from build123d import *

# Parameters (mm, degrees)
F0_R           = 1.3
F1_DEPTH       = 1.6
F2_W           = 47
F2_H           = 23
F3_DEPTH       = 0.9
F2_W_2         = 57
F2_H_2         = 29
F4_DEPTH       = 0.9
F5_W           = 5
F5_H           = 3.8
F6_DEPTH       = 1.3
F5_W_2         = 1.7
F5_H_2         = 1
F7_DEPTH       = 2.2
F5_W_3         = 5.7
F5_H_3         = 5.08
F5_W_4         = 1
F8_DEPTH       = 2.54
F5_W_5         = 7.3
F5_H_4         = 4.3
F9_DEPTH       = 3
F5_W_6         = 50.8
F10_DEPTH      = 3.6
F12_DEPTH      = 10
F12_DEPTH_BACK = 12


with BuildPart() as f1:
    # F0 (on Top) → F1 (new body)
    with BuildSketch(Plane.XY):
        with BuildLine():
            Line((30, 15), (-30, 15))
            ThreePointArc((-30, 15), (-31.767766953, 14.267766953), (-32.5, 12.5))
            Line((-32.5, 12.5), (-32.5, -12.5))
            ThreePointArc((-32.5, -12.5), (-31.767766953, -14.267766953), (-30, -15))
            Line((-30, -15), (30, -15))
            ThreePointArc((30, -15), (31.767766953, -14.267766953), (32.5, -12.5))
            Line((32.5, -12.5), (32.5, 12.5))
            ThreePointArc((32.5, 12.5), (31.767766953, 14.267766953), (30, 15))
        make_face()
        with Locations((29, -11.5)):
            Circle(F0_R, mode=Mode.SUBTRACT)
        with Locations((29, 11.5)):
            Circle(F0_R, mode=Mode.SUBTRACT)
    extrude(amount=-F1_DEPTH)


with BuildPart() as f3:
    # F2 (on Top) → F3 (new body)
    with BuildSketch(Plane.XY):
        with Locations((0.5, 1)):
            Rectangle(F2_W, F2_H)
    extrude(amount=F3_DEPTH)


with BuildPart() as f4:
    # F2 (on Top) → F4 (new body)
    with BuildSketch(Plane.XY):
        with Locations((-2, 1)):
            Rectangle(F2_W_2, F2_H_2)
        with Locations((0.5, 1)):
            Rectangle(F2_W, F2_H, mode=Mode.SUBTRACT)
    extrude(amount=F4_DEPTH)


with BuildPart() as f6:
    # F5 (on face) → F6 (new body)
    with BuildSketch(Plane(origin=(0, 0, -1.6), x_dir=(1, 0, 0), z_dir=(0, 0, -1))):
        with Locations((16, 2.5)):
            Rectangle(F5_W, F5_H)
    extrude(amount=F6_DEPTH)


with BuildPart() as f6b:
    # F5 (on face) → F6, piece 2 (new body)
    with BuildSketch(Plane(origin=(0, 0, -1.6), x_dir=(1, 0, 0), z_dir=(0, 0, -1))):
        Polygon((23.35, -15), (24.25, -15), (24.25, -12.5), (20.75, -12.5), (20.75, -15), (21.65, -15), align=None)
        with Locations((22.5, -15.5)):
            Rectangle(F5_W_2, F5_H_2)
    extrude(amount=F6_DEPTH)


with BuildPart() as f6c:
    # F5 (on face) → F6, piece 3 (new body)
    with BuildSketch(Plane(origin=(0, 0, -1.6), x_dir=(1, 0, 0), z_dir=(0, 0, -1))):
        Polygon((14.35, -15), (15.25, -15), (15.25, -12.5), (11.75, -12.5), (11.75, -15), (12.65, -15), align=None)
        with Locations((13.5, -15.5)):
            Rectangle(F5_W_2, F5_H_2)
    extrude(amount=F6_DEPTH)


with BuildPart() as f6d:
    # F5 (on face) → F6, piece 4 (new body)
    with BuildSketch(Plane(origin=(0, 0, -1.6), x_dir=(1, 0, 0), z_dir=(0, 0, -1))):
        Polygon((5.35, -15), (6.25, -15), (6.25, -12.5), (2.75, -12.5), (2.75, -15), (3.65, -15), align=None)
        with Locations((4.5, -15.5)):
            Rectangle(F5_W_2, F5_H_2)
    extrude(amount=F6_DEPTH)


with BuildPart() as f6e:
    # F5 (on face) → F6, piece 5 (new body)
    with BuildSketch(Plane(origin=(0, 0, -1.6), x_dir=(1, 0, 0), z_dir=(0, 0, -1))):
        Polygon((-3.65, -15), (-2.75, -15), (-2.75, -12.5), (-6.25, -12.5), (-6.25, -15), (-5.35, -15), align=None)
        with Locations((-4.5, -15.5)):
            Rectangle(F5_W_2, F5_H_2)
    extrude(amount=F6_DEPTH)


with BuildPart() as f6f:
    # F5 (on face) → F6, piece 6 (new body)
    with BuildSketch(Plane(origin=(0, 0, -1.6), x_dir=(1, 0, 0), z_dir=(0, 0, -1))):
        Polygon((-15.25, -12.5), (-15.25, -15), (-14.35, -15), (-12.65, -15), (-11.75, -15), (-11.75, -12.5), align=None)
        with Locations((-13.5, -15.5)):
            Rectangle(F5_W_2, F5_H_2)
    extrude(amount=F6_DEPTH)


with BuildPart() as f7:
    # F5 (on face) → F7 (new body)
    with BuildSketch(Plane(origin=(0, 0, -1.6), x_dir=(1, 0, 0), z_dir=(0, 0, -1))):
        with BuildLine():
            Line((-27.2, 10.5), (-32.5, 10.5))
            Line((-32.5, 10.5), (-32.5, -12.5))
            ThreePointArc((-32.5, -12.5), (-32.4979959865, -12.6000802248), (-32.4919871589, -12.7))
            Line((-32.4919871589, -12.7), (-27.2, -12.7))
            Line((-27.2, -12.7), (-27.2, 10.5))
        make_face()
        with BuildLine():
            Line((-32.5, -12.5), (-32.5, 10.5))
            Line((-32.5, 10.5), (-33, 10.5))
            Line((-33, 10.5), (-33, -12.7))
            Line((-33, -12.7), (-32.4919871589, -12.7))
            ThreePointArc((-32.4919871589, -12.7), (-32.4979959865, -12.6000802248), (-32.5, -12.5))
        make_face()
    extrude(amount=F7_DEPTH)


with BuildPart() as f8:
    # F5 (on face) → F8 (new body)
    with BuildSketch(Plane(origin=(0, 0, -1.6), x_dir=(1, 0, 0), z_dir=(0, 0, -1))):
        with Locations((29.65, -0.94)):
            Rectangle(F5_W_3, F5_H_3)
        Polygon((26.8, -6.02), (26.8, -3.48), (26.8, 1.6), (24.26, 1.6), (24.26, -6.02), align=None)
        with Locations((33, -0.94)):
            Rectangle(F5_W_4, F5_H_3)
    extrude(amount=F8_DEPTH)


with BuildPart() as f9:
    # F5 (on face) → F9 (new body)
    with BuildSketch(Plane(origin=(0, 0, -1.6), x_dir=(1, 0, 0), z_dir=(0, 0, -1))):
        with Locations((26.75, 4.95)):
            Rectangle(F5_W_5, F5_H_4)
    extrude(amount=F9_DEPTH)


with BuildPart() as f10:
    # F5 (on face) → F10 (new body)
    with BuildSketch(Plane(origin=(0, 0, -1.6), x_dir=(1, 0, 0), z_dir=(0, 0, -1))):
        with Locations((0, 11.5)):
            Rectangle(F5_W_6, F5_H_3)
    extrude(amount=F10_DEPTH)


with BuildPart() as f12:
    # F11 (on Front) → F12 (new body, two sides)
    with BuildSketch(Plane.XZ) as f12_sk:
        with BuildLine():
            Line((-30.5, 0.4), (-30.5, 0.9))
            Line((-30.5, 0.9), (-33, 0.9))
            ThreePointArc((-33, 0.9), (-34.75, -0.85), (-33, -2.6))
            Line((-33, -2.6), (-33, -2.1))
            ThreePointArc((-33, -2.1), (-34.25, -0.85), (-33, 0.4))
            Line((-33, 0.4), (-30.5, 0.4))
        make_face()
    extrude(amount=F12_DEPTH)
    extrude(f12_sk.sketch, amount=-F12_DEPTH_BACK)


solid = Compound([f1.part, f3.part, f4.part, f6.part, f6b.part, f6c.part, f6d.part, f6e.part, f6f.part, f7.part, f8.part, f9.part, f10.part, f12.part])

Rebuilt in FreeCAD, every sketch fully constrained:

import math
import FreeCAD as App
import Part
import Sketcher
from FreeCAD import Vector


def add_polygon(sketch, points):
    """Adds a closed chain of lines whose ends are joined by coincident constraints."""
    first, n = sketch.GeometryCount, len(points)
    for a, b in zip(points, points[1:] + points[:1]):
        sketch.addGeometry(Part.LineSegment(App.Vector(*a, 0), App.Vector(*b, 0)), False)
    for i in range(n):
        sketch.addConstraint(Sketcher.Constraint("Coincident", first + i, 2, first + (i + 1) % n, 1))

doc = App.newDocument("Part")
body = doc.addObject("PartDesign::Body", "Body")

# Sketch on XY plane
sketch1 = body.newObject("Sketcher::SketchObject", "Sketch")
sketch1.AttachmentSupport = (doc.getObject("XY_Plane"), [""])
sketch1.MapMode = "FlatFace"
sketch1.addGeometry([
    Part.LineSegment(Vector(30, 15, 0), Vector(-30, 15, 0)),  # 0
    Part.ArcOfCircle(Part.Circle(Vector(-30, 12.5, 0), Vector(0, 0, 1), 2.5), math.radians(90), math.radians(180)),  # 1
    Part.LineSegment(Vector(-32.5, 12.5, 0), Vector(-32.5, -12.5, 0)),  # 2
    Part.ArcOfCircle(Part.Circle(Vector(-30, -12.5, 0), Vector(0, 0, 1), 2.5), math.radians(180), math.radians(270)),  # 3
    Part.LineSegment(Vector(-30, -15, 0), Vector(30, -15, 0)),  # 4
    Part.ArcOfCircle(Part.Circle(Vector(30, -12.5, 0), Vector(0, 0, 1), 2.5), math.radians(-90), math.radians(0)),  # 5
    Part.LineSegment(Vector(32.5, -12.5, 0), Vector(32.5, 12.5, 0)),  # 6
    Part.ArcOfCircle(Part.Circle(Vector(30, 12.5, 0), Vector(0, 0, 1), 2.5), math.radians(0), math.radians(90)),  # 7
    Part.Circle(Vector(29, -11.5, 0), Vector(0, 0, 1), 1.3),  # 8
    Part.Circle(Vector(29, 11.5, 0), Vector(0, 0, 1), 1.3),  # 9
], False)
sketch1.addConstraint([
    Sketcher.Constraint("Tangent", 0, 2, 1, 1),
    Sketcher.Constraint("Tangent", 1, 2, 2, 1),
    Sketcher.Constraint("Tangent", 2, 2, 3, 1),
    Sketcher.Constraint("Tangent", 3, 2, 4, 1),
    Sketcher.Constraint("Tangent", 4, 2, 5, 1),
    Sketcher.Constraint("Tangent", 5, 2, 6, 1),
    Sketcher.Constraint("Tangent", 6, 2, 7, 1),
    Sketcher.Constraint("Tangent", 7, 2, 0, 1),
    Sketcher.Constraint("Horizontal", 0),
    Sketcher.Constraint("Vertical", 2),
    Sketcher.Constraint("Horizontal", 4),
    Sketcher.Constraint("Vertical", 6),
    Sketcher.Constraint("Equal", 1, 3),
    Sketcher.Constraint("Equal", 3, 5),
    Sketcher.Constraint("Equal", 5, 7),
    Sketcher.Constraint("Equal", 8, 9),
    Sketcher.Constraint("Symmetric", 1, 3, 5, 3, -1, 1),
    Sketcher.Constraint("Symmetric", 8, 3, 9, 3, -1),
    Sketcher.Constraint("Diameter", 8, 2.6),
    Sketcher.Constraint("Radius", 1, 2.5),
    Sketcher.Constraint("DistanceX", 0, 2, 0, 1, 60.0),
    Sketcher.Constraint("DistanceY", 2, 2, 2, 1, 25.0),
    Sketcher.Constraint("DistanceX", -1, 1, 8, 3, 29.0),
    Sketcher.Constraint("DistanceY", 5, 3, 8, 3, 1.0),
])
pad1 = body.newObject("PartDesign::Pad", "Pad")
pad1.Profile = sketch1
pad1.Length = 1.6
pad1.Reversed = True
body2 = doc.addObject("PartDesign::Body", "Body001")

# Sketch on XY plane
sketch2 = body2.newObject("Sketcher::SketchObject", "Sketch001")
sketch2.AttachmentSupport = (doc.getObject("XY_Plane001"), [""])
sketch2.MapMode = "FlatFace"
add_polygon(sketch2, [(-23, 12.5), (-23, -10.5), (24, -10.5), (24, 12.5)])  # lines 0-3
sketch2.addConstraint([
    Sketcher.Constraint("Vertical", 0),
    Sketcher.Constraint("Horizontal", 1),
    Sketcher.Constraint("Vertical", 2),
    Sketcher.Constraint("Horizontal", 3),
    Sketcher.Constraint("DistanceX", 1, 1, 1, 2, 47.0),
    Sketcher.Constraint("DistanceY", 0, 2, 0, 1, 23.0),
    Sketcher.Constraint("DistanceX", 0, 2, -1, 1, 23.0),
    Sketcher.Constraint("DistanceY", 0, 2, -1, 1, 10.5),
])
pad2 = body2.newObject("PartDesign::Pad", "Pad001")
pad2.Profile = sketch2
pad2.Length = 0.9
body3 = doc.addObject("PartDesign::Body", "Body002")

# Sketch on XY plane
sketch3 = body3.newObject("Sketcher::SketchObject", "Sketch002")
sketch3.AttachmentSupport = (doc.getObject("XY_Plane002"), [""])
sketch3.MapMode = "FlatFace"
add_polygon(sketch3, [(-30.5, 15.5), (-30.5, -13.5), (26.5, -13.5), (26.5, 15.5)])  # lines 0-3
add_polygon(sketch3, [(24, -10.5), (-23, -10.5), (-23, 12.5), (24, 12.5)])  # lines 4-7
sketch3.addConstraint([
    Sketcher.Constraint("Vertical", 0),
    Sketcher.Constraint("Horizontal", 1),
    Sketcher.Constraint("Vertical", 2),
    Sketcher.Constraint("Horizontal", 3),
    Sketcher.Constraint("Horizontal", 4),
    Sketcher.Constraint("Vertical", 5),
    Sketcher.Constraint("Horizontal", 6),
    Sketcher.Constraint("Vertical", 7),
    Sketcher.Constraint("DistanceX", 1, 1, 1, 2, 57.0),
    Sketcher.Constraint("DistanceX", 4, 2, 4, 1, 47.0),
    Sketcher.Constraint("DistanceY", 0, 2, 0, 1, 29.0),
    Sketcher.Constraint("DistanceY", 5, 1, 5, 2, 23.0),
    Sketcher.Constraint("DistanceX", 4, 2, -1, 1, 23.0),
    Sketcher.Constraint("DistanceY", 0, 2, 4, 2, 3.0),
    Sketcher.Constraint("DistanceX", 0, 2, -1, 1, 30.5),
    Sketcher.Constraint("DistanceY", 0, 2, -1, 1, 13.5),
])
pad3 = body3.newObject("PartDesign::Pad", "Pad002")
pad3.Profile = sketch3
pad3.Length = 0.9
body4 = doc.addObject("PartDesign::Body", "Body003")

# Sketch on XY plane
sketch4 = body4.newObject("Sketcher::SketchObject", "Sketch003")
sketch4.AttachmentSupport = (doc.getObject("XY_Plane003"), [""])
sketch4.MapMode = "FlatFace"
sketch4.AttachmentOffset = App.Placement(Vector(0, 0, -1.6), App.Rotation())
add_polygon(sketch4, [(13.5, -4.4), (13.5, -0.6), (18.5, -0.6), (18.5, -4.4)])  # lines 0-3
sketch4.addConstraint([
    Sketcher.Constraint("Vertical", 0),
    Sketcher.Constraint("Horizontal", 1),
    Sketcher.Constraint("Vertical", 2),
    Sketcher.Constraint("Horizontal", 3),
    Sketcher.Constraint("DistanceX", 1, 1, 1, 2, 5.0),
    Sketcher.Constraint("DistanceY", 0, 1, 0, 2, 3.8),
    Sketcher.Constraint("DistanceX", -1, 1, 0, 2, 13.5),
    Sketcher.Constraint("DistanceY", 0, 2, -1, 1, 0.6),
])
pad4 = body4.newObject("PartDesign::Pad", "Pad003")
pad4.Profile = sketch4
pad4.Length = 1.3
pad4.Reversed = True
body5 = doc.addObject("PartDesign::Body", "Body004")

# Sketch on XY plane
sketch5 = body5.newObject("Sketcher::SketchObject", "Sketch004")
sketch5.AttachmentSupport = (doc.getObject("XY_Plane004"), [""])
sketch5.MapMode = "FlatFace"
sketch5.AttachmentOffset = App.Placement(Vector(0, 0, -1.6), App.Rotation())
add_polygon(sketch5, [(24.25, 15), (24.25, 12.5), (20.75, 12.5), (20.75, 15), (21.65, 15), (21.65, 16), (23.35, 16), (23.35, 15)])  # lines 0-7
sketch5.addConstraint([
    Sketcher.Constraint("Vertical", 0),
    Sketcher.Constraint("Horizontal", 1),
    Sketcher.Constraint("Vertical", 2),
    Sketcher.Constraint("Horizontal", 3),
    Sketcher.Constraint("Vertical", 4),
    Sketcher.Constraint("Horizontal", 5),
    Sketcher.Constraint("Vertical", 6),
    Sketcher.Constraint("Horizontal", 7),
    Sketcher.Constraint("Horizontal", 3, 2, 6, 2),
    Sketcher.Constraint("Equal", 3, 7),
    Sketcher.Constraint("DistanceY", 4, 1, 4, 2, 1.0),
    Sketcher.Constraint("DistanceX", 1, 2, 1, 1, 3.5),
    Sketcher.Constraint("DistanceX", 3, 1, 3, 2, 0.9),
    Sketcher.Constraint("DistanceY", 0, 2, 0, 1, 2.5),
    Sketcher.Constraint("DistanceY", -1, 1, 2, 2, 15.0),
    Sketcher.Constraint("DistanceX", -1, 1, 0, 2, 24.25),
])
pad5 = body5.newObject("PartDesign::Pad", "Pad004")
pad5.Profile = sketch5
pad5.Length = 1.3
pad5.Reversed = True
body6 = doc.addObject("PartDesign::Body", "Body005")

# Sketch on XY plane
sketch6 = body6.newObject("Sketcher::SketchObject", "Sketch005")
sketch6.AttachmentSupport = (doc.getObject("XY_Plane005"), [""])
sketch6.MapMode = "FlatFace"
sketch6.AttachmentOffset = App.Placement(Vector(0, 0, -1.6), App.Rotation())
add_polygon(sketch6, [(15.25, 15), (15.25, 12.5), (11.75, 12.5), (11.75, 15), (12.65, 15), (12.65, 16), (14.35, 16), (14.35, 15)])  # lines 0-7
sketch6.addConstraint([
    Sketcher.Constraint("Vertical", 0),
    Sketcher.Constraint("Horizontal", 1),
    Sketcher.Constraint("Vertical", 2),
    Sketcher.Constraint("Horizontal", 3),
    Sketcher.Constraint("Vertical", 4),
    Sketcher.Constraint("Horizontal", 5),
    Sketcher.Constraint("Vertical", 6),
    Sketcher.Constraint("Horizontal", 7),
    Sketcher.Constraint("Horizontal", 3, 2, 6, 2),
    Sketcher.Constraint("Equal", 3, 7),
    Sketcher.Constraint("DistanceY", 4, 1, 4, 2, 1.0),
    Sketcher.Constraint("DistanceX", 1, 2, 1, 1, 3.5),
    Sketcher.Constraint("DistanceX", 3, 1, 3, 2, 0.9),
    Sketcher.Constraint("DistanceY", 0, 2, 0, 1, 2.5),
    Sketcher.Constraint("DistanceY", -1, 1, 2, 2, 15.0),
    Sketcher.Constraint("DistanceX", -1, 1, 0, 2, 15.25),
])
pad6 = body6.newObject("PartDesign::Pad", "Pad005")
pad6.Profile = sketch6
pad6.Length = 1.3
pad6.Reversed = True
body7 = doc.addObject("PartDesign::Body", "Body006")

# Sketch on XY plane
sketch7 = body7.newObject("Sketcher::SketchObject", "Sketch006")
sketch7.AttachmentSupport = (doc.getObject("XY_Plane006"), [""])
sketch7.MapMode = "FlatFace"
sketch7.AttachmentOffset = App.Placement(Vector(0, 0, -1.6), App.Rotation())
add_polygon(sketch7, [(6.25, 15), (6.25, 12.5), (2.75, 12.5), (2.75, 15), (3.65, 15), (3.65, 16), (5.35, 16), (5.35, 15)])  # lines 0-7
sketch7.addConstraint([
    Sketcher.Constraint("Vertical", 0),
    Sketcher.Constraint("Horizontal", 1),
    Sketcher.Constraint("Vertical", 2),
    Sketcher.Constraint("Horizontal", 3),
    Sketcher.Constraint("Vertical", 4),
    Sketcher.Constraint("Horizontal", 5),
    Sketcher.Constraint("Vertical", 6),
    Sketcher.Constraint("Horizontal", 7),
    Sketcher.Constraint("Horizontal", 3, 2, 6, 2),
    Sketcher.Constraint("Equal", 3, 7),
    Sketcher.Constraint("DistanceY", 4, 1, 4, 2, 1.0),
    Sketcher.Constraint("DistanceX", 1, 2, 1, 1, 3.5),
    Sketcher.Constraint("DistanceX", 3, 1, 3, 2, 0.9),
    Sketcher.Constraint("DistanceY", 0, 2, 0, 1, 2.5),
    Sketcher.Constraint("DistanceY", -1, 1, 2, 2, 15.0),
    Sketcher.Constraint("DistanceX", -1, 1, 0, 2, 6.25),
])
pad7 = body7.newObject("PartDesign::Pad", "Pad006")
pad7.Profile = sketch7
pad7.Length = 1.3
pad7.Reversed = True
body8 = doc.addObject("PartDesign::Body", "Body007")

# Sketch on XY plane
sketch8 = body8.newObject("Sketcher::SketchObject", "Sketch007")
sketch8.AttachmentSupport = (doc.getObject("XY_Plane007"), [""])
sketch8.MapMode = "FlatFace"
sketch8.AttachmentOffset = App.Placement(Vector(0, 0, -1.6), App.Rotation())
add_polygon(sketch8, [(-2.75, 15), (-2.75, 12.5), (-6.25, 12.5), (-6.25, 15), (-5.35, 15), (-5.35, 16), (-3.65, 16), (-3.65, 15)])  # lines 0-7
sketch8.addConstraint([
    Sketcher.Constraint("Vertical", 0),
    Sketcher.Constraint("Horizontal", 1),
    Sketcher.Constraint("Vertical", 2),
    Sketcher.Constraint("Horizontal", 3),
    Sketcher.Constraint("Vertical", 4),
    Sketcher.Constraint("Horizontal", 5),
    Sketcher.Constraint("Vertical", 6),
    Sketcher.Constraint("Horizontal", 7),
    Sketcher.Constraint("Horizontal", 3, 2, 6, 2),
    Sketcher.Constraint("Equal", 3, 7),
    Sketcher.Constraint("DistanceY", 4, 1, 4, 2, 1.0),
    Sketcher.Constraint("DistanceX", 1, 2, 1, 1, 3.5),
    Sketcher.Constraint("DistanceX", 3, 1, 3, 2, 0.9),
    Sketcher.Constraint("DistanceY", 0, 2, 0, 1, 2.5),
    Sketcher.Constraint("DistanceY", -1, 1, 2, 2, 15.0),
    Sketcher.Constraint("DistanceX", 0, 2, -1, 1, 2.75),
])
pad8 = body8.newObject("PartDesign::Pad", "Pad007")
pad8.Profile = sketch8
pad8.Length = 1.3
pad8.Reversed = True
body9 = doc.addObject("PartDesign::Body", "Body008")

# Sketch on XY plane
sketch9 = body9.newObject("Sketcher::SketchObject", "Sketch008")
sketch9.AttachmentSupport = (doc.getObject("XY_Plane008"), [""])
sketch9.MapMode = "FlatFace"
sketch9.AttachmentOffset = App.Placement(Vector(0, 0, -1.6), App.Rotation())
add_polygon(sketch9, [(-15.25, 12.5), (-15.25, 15), (-14.35, 15), (-14.35, 16), (-12.65, 16), (-12.65, 15), (-11.75, 15), (-11.75, 12.5)])  # lines 0-7
sketch9.addConstraint([
    Sketcher.Constraint("Vertical", 0),
    Sketcher.Constraint("Horizontal", 1),
    Sketcher.Constraint("Vertical", 2),
    Sketcher.Constraint("Horizontal", 3),
    Sketcher.Constraint("Vertical", 4),
    Sketcher.Constraint("Horizontal", 5),
    Sketcher.Constraint("Vertical", 6),
    Sketcher.Constraint("Horizontal", 7),
    Sketcher.Constraint("Horizontal", 1, 2, 4, 2),
    Sketcher.Constraint("Equal", 1, 5),
    Sketcher.Constraint("DistanceY", 2, 1, 2, 2, 1.0),
    Sketcher.Constraint("DistanceX", 1, 1, 1, 2, 0.9),
    Sketcher.Constraint("DistanceX", 3, 1, 3, 2, 1.7),
    Sketcher.Constraint("DistanceY", 0, 1, 0, 2, 2.5),
    Sketcher.Constraint("DistanceY", -1, 1, 0, 2, 15.0),
    Sketcher.Constraint("DistanceX", 0, 2, -1, 1, 15.25),
])
pad9 = body9.newObject("PartDesign::Pad", "Pad008")
pad9.Profile = sketch9
pad9.Length = 1.3
pad9.Reversed = True
body10 = doc.addObject("PartDesign::Body", "Body009")

# Sketch on XY plane
sketch10 = body10.newObject("Sketcher::SketchObject", "Sketch009")
sketch10.AttachmentSupport = (doc.getObject("XY_Plane009"), [""])
sketch10.MapMode = "FlatFace"
sketch10.AttachmentOffset = App.Placement(Vector(0, 0, -1.6), App.Rotation())
add_polygon(sketch10, [(-27.2, -10.5), (-33, -10.5), (-33, 12.7), (-27.2, 12.7)])  # lines 0-3
sketch10.addConstraint([
    Sketcher.Constraint("Horizontal", 0),
    Sketcher.Constraint("Vertical", 1),
    Sketcher.Constraint("Horizontal", 2),
    Sketcher.Constraint("Vertical", 3),
    Sketcher.Constraint("DistanceX", 0, 2, 0, 1, 5.8),
    Sketcher.Constraint("DistanceY", 1, 1, 1, 2, 23.2),
    Sketcher.Constraint("DistanceX", 0, 2, -1, 1, 33.0),
    Sketcher.Constraint("DistanceY", 0, 2, -1, 1, 10.5),
])
pad10 = body10.newObject("PartDesign::Pad", "Pad009")
pad10.Profile = sketch10
pad10.Length = 2.2
pad10.Reversed = True
body11 = doc.addObject("PartDesign::Body", "Body010")

# Sketch on XY plane
sketch11 = body11.newObject("Sketcher::SketchObject", "Sketch010")
sketch11.AttachmentSupport = (doc.getObject("XY_Plane010"), [""])
sketch11.MapMode = "FlatFace"
sketch11.AttachmentOffset = App.Placement(Vector(0, 0, -1.6), App.Rotation())
add_polygon(sketch11, [(26.8, 3.48), (33.5, 3.48), (33.5, -1.6), (24.26, -1.6), (24.26, 6.02), (26.8, 6.02)])  # lines 0-5
sketch11.addConstraint([
    Sketcher.Constraint("Horizontal", 0),
    Sketcher.Constraint("Vertical", 1),
    Sketcher.Constraint("Horizontal", 2),
    Sketcher.Constraint("Vertical", 3),
    Sketcher.Constraint("Horizontal", 4),
    Sketcher.Constraint("Vertical", 5),
    Sketcher.Constraint("Equal", 4, 5),
    Sketcher.Constraint("DistanceX", 0, 1, 0, 2, 6.7),
    Sketcher.Constraint("DistanceX", 2, 2, 2, 1, 9.24),
    Sketcher.Constraint("DistanceY", 1, 2, 1, 1, 5.08),
    Sketcher.Constraint("DistanceX", -1, 1, 0, 2, 33.5),
    Sketcher.Constraint("DistanceY", 1, 2, -1, 1, 1.6),
])
pad11 = body11.newObject("PartDesign::Pad", "Pad010")
pad11.Profile = sketch11
pad11.Length = 2.54
pad11.Reversed = True
body12 = doc.addObject("PartDesign::Body", "Body011")

# Sketch on XY plane
sketch12 = body12.newObject("Sketcher::SketchObject", "Sketch011")
sketch12.AttachmentSupport = (doc.getObject("XY_Plane011"), [""])
sketch12.MapMode = "FlatFace"
sketch12.AttachmentOffset = App.Placement(Vector(0, 0, -1.6), App.Rotation())
add_polygon(sketch12, [(23.1, -7.1), (23.1, -2.8), (30.4, -2.8), (30.4, -7.1)])  # lines 0-3
sketch12.addConstraint([
    Sketcher.Constraint("Vertical", 0),
    Sketcher.Constraint("Horizontal", 1),
    Sketcher.Constraint("Vertical", 2),
    Sketcher.Constraint("Horizontal", 3),
    Sketcher.Constraint("DistanceX", 1, 1, 1, 2, 7.3),
    Sketcher.Constraint("DistanceY", 0, 1, 0, 2, 4.3),
    Sketcher.Constraint("DistanceX", -1, 1, 0, 2, 23.1),
    Sketcher.Constraint("DistanceY", 0, 2, -1, 1, 2.8),
])
pad12 = body12.newObject("PartDesign::Pad", "Pad011")
pad12.Profile = sketch12
pad12.Length = 3
pad12.Reversed = True
body13 = doc.addObject("PartDesign::Body", "Body012")

# Sketch on XY plane
sketch13 = body13.newObject("Sketcher::SketchObject", "Sketch012")
sketch13.AttachmentSupport = (doc.getObject("XY_Plane012"), [""])
sketch13.MapMode = "FlatFace"
sketch13.AttachmentOffset = App.Placement(Vector(0, 0, -1.6), App.Rotation())
add_polygon(sketch13, [(-25.4, -14.04), (-25.4, -8.96), (25.4, -8.96), (25.4, -14.04)])  # lines 0-3
sketch13.addConstraint([
    Sketcher.Constraint("Vertical", 0),
    Sketcher.Constraint("Horizontal", 1),
    Sketcher.Constraint("Vertical", 2),
    Sketcher.Constraint("Horizontal", 3),
    Sketcher.Constraint("DistanceX", 1, 1, 1, 2, 50.8),
    Sketcher.Constraint("DistanceY", 0, 1, 0, 2, 5.08),
    Sketcher.Constraint("DistanceX", 0, 2, -1, 1, 25.4),
    Sketcher.Constraint("DistanceY", 0, 2, -1, 1, 8.96),
])
pad13 = body13.newObject("PartDesign::Pad", "Pad012")
pad13.Profile = sketch13
pad13.Length = 3.6
pad13.Reversed = True
body14 = doc.addObject("PartDesign::Body", "Body013")

# Sketch on XZ plane
sketch14 = body14.newObject("Sketcher::SketchObject", "Sketch013")
sketch14.AttachmentSupport = (doc.getObject("XZ_Plane013"), [""])
sketch14.MapMode = "FlatFace"
sketch14.addGeometry([
    Part.LineSegment(Vector(-30.5, 0.4, 0), Vector(-30.5, 0.9, 0)),  # 0
    Part.LineSegment(Vector(-30.5, 0.9, 0), Vector(-33, 0.9, 0)),  # 1
    Part.ArcOfCircle(Part.Circle(Vector(-33, -0.85, 0), Vector(0, 0, 1), 1.75), math.radians(90), math.radians(270)),  # 2
    Part.LineSegment(Vector(-33, -2.6, 0), Vector(-33, -2.1, 0)),  # 3
    Part.ArcOfCircle(Part.Circle(Vector(-33, -0.85, 0), Vector(0, 0, 1), 1.25), math.radians(90), math.radians(270)),  # 4
    Part.LineSegment(Vector(-33, 0.4, 0), Vector(-30.5, 0.4, 0)),  # 5
], False)
sketch14.addConstraint([
    Sketcher.Constraint("Coincident", 0, 2, 1, 1),
    Sketcher.Constraint("Tangent", 1, 2, 2, 1),
    Sketcher.Constraint("Coincident", 2, 2, 3, 1),
    Sketcher.Constraint("Coincident", 3, 2, 4, 2),
    Sketcher.Constraint("Tangent", 4, 1, 5, 1),
    Sketcher.Constraint("Coincident", 5, 2, 0, 1),
    Sketcher.Constraint("Vertical", 0),
    Sketcher.Constraint("Horizontal", 1),
    Sketcher.Constraint("Vertical", 3),
    Sketcher.Constraint("Horizontal", 5),
    Sketcher.Constraint("Coincident", 4, 3, 2, 3),
    Sketcher.Constraint("Vertical", 1, 2, 2, 2),
    Sketcher.Constraint("Radius", 2, 1.75),
    Sketcher.Constraint("Radius", 4, 1.25),
    Sketcher.Constraint("DistanceX", 1, 2, 1, 1, 2.5),
    Sketcher.Constraint("DistanceX", 2, 3, -1, 1, 33.0),
    Sketcher.Constraint("DistanceY", -1, 1, 0, 2, 0.9),
])
pad14 = body14.newObject("PartDesign::Pad", "Pad013")
pad14.Profile = sketch14
pad14.Type = "TwoLengths"
pad14.Length = 10
pad14.Length2 = 12

doc.recompute()
